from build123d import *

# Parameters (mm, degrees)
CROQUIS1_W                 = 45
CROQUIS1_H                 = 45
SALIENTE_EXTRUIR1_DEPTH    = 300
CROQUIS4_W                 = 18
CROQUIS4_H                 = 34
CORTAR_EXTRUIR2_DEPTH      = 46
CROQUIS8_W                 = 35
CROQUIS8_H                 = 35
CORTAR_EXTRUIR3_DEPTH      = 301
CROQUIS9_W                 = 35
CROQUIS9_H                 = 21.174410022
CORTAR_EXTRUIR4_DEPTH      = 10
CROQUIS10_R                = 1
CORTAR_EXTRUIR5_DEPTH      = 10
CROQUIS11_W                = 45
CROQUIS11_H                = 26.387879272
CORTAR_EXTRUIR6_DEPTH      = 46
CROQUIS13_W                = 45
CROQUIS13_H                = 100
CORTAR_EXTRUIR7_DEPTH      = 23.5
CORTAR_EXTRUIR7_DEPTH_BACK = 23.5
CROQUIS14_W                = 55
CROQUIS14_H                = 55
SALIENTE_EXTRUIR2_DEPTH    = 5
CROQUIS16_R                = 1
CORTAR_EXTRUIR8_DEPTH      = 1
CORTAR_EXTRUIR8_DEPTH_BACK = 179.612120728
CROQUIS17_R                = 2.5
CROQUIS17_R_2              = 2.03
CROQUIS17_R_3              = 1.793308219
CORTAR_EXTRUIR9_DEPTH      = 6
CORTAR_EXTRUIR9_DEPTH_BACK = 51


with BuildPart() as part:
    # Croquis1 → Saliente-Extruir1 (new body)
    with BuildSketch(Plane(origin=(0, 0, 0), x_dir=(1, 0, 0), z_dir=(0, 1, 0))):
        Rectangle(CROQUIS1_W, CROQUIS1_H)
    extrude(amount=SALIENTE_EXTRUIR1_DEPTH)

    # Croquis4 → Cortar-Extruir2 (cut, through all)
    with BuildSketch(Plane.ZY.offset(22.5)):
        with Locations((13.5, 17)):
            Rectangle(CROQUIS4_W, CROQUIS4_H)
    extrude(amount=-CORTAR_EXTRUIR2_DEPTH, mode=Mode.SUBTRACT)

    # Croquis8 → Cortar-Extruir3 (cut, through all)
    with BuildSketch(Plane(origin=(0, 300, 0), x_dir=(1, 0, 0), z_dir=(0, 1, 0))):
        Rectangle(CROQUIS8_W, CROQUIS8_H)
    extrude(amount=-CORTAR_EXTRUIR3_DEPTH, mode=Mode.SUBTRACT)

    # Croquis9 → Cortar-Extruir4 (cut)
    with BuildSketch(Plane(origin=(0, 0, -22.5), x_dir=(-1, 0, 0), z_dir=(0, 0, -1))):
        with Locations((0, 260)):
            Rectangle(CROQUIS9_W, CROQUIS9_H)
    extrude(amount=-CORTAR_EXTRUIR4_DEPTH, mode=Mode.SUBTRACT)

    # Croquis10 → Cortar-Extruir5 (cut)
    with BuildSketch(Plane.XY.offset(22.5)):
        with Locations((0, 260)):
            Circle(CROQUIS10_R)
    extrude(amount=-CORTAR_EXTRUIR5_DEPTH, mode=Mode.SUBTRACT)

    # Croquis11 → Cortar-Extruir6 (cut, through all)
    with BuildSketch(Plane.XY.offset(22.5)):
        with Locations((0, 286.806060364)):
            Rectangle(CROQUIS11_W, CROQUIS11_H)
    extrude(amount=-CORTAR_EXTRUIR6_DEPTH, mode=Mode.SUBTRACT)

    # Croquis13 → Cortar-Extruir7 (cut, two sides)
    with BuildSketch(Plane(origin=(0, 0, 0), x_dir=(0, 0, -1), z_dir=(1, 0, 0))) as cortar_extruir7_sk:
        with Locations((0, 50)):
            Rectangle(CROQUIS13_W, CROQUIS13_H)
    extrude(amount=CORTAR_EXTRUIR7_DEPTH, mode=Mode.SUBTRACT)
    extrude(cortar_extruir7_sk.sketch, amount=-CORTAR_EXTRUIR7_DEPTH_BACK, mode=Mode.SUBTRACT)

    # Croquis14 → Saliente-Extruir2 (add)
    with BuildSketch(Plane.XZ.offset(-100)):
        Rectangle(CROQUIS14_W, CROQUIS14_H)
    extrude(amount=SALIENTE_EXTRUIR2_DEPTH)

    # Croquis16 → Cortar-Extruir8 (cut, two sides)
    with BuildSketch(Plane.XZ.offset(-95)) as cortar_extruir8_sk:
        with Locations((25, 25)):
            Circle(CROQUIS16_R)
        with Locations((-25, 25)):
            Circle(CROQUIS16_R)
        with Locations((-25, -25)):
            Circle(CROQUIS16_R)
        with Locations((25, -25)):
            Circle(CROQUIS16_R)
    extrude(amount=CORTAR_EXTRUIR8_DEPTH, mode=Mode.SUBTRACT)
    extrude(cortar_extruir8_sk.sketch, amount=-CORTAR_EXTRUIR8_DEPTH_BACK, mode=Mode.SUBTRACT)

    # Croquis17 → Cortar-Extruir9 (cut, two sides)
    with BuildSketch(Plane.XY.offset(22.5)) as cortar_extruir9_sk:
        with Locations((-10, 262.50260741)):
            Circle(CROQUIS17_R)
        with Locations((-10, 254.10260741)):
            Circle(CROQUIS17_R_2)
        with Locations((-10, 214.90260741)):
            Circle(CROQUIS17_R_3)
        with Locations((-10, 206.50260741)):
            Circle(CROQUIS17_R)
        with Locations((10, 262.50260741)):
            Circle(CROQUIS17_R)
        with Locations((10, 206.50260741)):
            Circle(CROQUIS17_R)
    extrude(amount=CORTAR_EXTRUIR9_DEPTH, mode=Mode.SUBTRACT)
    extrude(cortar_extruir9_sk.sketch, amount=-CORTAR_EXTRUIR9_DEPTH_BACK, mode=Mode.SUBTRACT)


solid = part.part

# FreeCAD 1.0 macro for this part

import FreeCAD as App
import Part
import Sketcher
from FreeCAD import Vector

doc = App.newDocument("Part")
body = doc.addObject("PartDesign::Body", "Body")

# Sketch on XZ plane
sketch1 = body.newObject("Sketcher::SketchObject", "Sketch")
sketch1.AttachmentSupport = (doc.getObject("XZ_Plane"), [""])
sketch1.MapMode = "FlatFace"
sketch1.addGeometry([
    Part.LineSegment(Vector(-22, -22, 0), Vector(-22, 22, 0)),
    Part.LineSegment(Vector(-22, 22, 0), Vector(22, 22, 0)),
    Part.LineSegment(Vector(22, 22, 0), Vector(22, -22, 0)),
    Part.LineSegment(Vector(22, -22, 0), Vector(-22, -22, 0)),
], False)
sketch1.addConstraint([
    Sketcher.Constraint("Coincident", 0, 2, 1, 1),
    Sketcher.Constraint("Coincident", 1, 2, 2, 1),
    Sketcher.Constraint("Coincident", 2, 2, 3, 1),
    Sketcher.Constraint("Coincident", 3, 2, 0, 1),
    Sketcher.Constraint("Vertical", 0),
    Sketcher.Constraint("Horizontal", 1),
    Sketcher.Constraint("Vertical", 2),
    Sketcher.Constraint("Horizontal", 3),
    Sketcher.Constraint("Symmetric", 0, 2, 2, 2, -1, 1),
    Sketcher.Constraint("Equal", 3, 0),
    Sketcher.Constraint("DistanceX", 1, 1, 1, 2, 45.0),
])
pad1 = body.newObject("PartDesign::Pad", "Pad")
pad1.Profile = sketch1
pad1.Length = 300
pad1.Reversed = True

# Sketch on YZ plane
sketch2 = body.newObject("Sketcher::SketchObject", "Sketch001")
sketch2.AttachmentSupport = (doc.getObject("YZ_Plane"), [""])
sketch2.MapMode = "FlatFace"
sketch2.AttachmentOffset = App.Placement(Vector(0, 0, -22.5), App.Rotation())
sketch2.addGeometry([
    Part.LineSegment(Vector(34, 4, 0), Vector(0, 4, 0)),
    Part.LineSegment(Vector(0, 4, 0), Vector(0, 22, 0)),
    Part.LineSegment(Vector(0, 22, 0), Vector(34, 22, 0)),
    Part.LineSegment(Vector(34, 22, 0), Vector(34, 4, 0)),
], False)
sketch2.addConstraint([
    Sketcher.Constraint("Coincident", 0, 2, 1, 1),
    Sketcher.Constraint("Coincident", 1, 2, 2, 1),
    Sketcher.Constraint("Coincident", 2, 2, 3, 1),
    Sketcher.Constraint("Coincident", 3, 2, 0, 1),
    Sketcher.Constraint("Horizontal", 0),
    Sketcher.Constraint("Vertical", 1),
    Sketcher.Constraint("Horizontal", 2),
    Sketcher.Constraint("Vertical", 3),
    Sketcher.Constraint("PointOnObject", 0, 2, -2),
    Sketcher.Constraint("DistanceX", 0, 2, 0, 1, 34.0),
    Sketcher.Constraint("DistanceY", 1, 1, 1, 2, 18.0),
    Sketcher.Constraint("DistanceY", -1, 1, 0, 2, 4.5),
])
pocket1 = body.newObject("PartDesign::Pocket", "Pocket")
pocket1.Profile = sketch2
pocket1.Type = "ThroughAll"
pocket1.Reversed = True

# Sketch on XZ plane
sketch3 = body.newObject("Sketcher::SketchObject", "Sketch002")
sketch3.AttachmentSupport = (doc.getObject("XZ_Plane"), [""])
sketch3.MapMode = "FlatFace"
sketch3.AttachmentOffset = App.Placement(Vector(0, 0, -300), App.Rotation())
sketch3.addGeometry([
    Part.LineSegment(Vector(-18, -18, 0), Vector(-18, 18, 0)),
    Part.LineSegment(Vector(-18, 18, 0), Vector(18, 18, 0)),
    Part.LineSegment(Vector(18, 18, 0), Vector(18, -18, 0)),
    Part.LineSegment(Vector(18, -18, 0), Vector(-18, -18, 0)),
], False)
sketch3.addConstraint([
    Sketcher.Constraint("Coincident", 0, 2, 1, 1),
    Sketcher.Constraint("Coincident", 1, 2, 2, 1),
    Sketcher.Constraint("Coincident", 2, 2, 3, 1),
    Sketcher.Constraint("Coincident", 3, 2, 0, 1),
    Sketcher.Constraint("Vertical", 0),
    Sketcher.Constraint("Horizontal", 1),
    Sketcher.Constraint("Vertical", 2),
    Sketcher.Constraint("Horizontal", 3),
    Sketcher.Constraint("Symmetric", 0, 2, 2, 2, -1, 1),
    Sketcher.Constraint("Equal", 3, 0),
    Sketcher.Constraint("DistanceX", 1, 1, 1, 2, 35.0),
])
pocket2 = body.newObject("PartDesign::Pocket", "Pocket001")
pocket2.Profile = sketch3
pocket2.Type = "ThroughAll"
pocket2.Reversed = True

# Sketch on XY plane
sketch4 = body.newObject("Sketcher::SketchObject", "Sketch003")
sketch4.AttachmentSupport = (doc.getObject("XY_Plane"), [""])
sketch4.MapMode = "FlatFace"
sketch4.AttachmentOffset = App.Placement(Vector(0, 0, -22.5), App.Rotation())
sketch4.addGeometry([
    Part.LineSegment(Vector(18, 271, 0), Vector(18, 249, 0)),
    Part.LineSegment(Vector(18, 249, 0), Vector(-18, 249, 0)),
    Part.LineSegment(Vector(-18, 249, 0), Vector(-18, 271, 0)),
    Part.LineSegment(Vector(-18, 271, 0), Vector(18, 271, 0)),
], False)
sketch4.addConstraint([
    Sketcher.Constraint("Coincident", 0, 2, 1, 1),
    Sketcher.Constraint("Coincident", 1, 2, 2, 1),
    Sketcher.Constraint("Coincident", 2, 2, 3, 1),
    Sketcher.Constraint("Coincident", 3, 2, 0, 1),
    Sketcher.Constraint("Vertical", 0),
    Sketcher.Constraint("Horizontal", 1),
    Sketcher.Constraint("Vertical", 2),
    Sketcher.Constraint("Horizontal", 3),
    Sketcher.Constraint("DistanceX", 1, 2, 1, 1, 35.0),
    Sketcher.Constraint("DistanceX", -1, 1, 0, 2, 17.5),
    Sketcher.Constraint("DistanceY", 0, 2, 0, 1, 21.17441),
    Sketcher.Constraint("DistanceY", -1, 1, 0, 2, 249.412795),
])
pocket3 = body.newObject("PartDesign::Pocket", "Pocket002")
pocket3.Profile = sketch4
pocket3.Length = 10
pocket3.Reversed = True

# Sketch on XY plane
sketch5 = body.newObject("Sketcher::SketchObject", "Sketch004")
sketch5.AttachmentSupport = (doc.getObject("XY_Plane"), [""])
sketch5.MapMode = "FlatFace"
sketch5.AttachmentOffset = App.Placement(Vector(0, 0, 22.5), App.Rotation())
sketch5.addGeometry(Part.Circle(Vector(0, 260, 0), Vector(0, 0, 1), 1), False)
sketch5.addConstraint([
    Sketcher.Constraint("PointOnObject", 0, 3, -2),
    Sketcher.Constraint("Diameter", 0, 2.0),
    Sketcher.Constraint("DistanceY", -1, 1, 0, 3, 260.0),
])
pocket4 = body.newObject("PartDesign::Pocket", "Pocket003")
pocket4.Profile = sketch5
pocket4.Length = 10

# Sketch on XY plane
sketch6 = body.newObject("Sketcher::SketchObject", "Sketch005")
sketch6.AttachmentSupport = (doc.getObject("XY_Plane"), [""])
sketch6.MapMode = "FlatFace"
sketch6.AttachmentOffset = App.Placement(Vector(0, 0, 22.5), App.Rotation())
sketch6.addGeometry([
    Part.LineSegment(Vector(-22, 300, 0), Vector(-22, 274, 0)),
    Part.LineSegment(Vector(-22, 274, 0), Vector(22, 274, 0)),
    Part.LineSegment(Vector(22, 274, 0), Vector(22, 300, 0)),
    Part.LineSegment(Vector(22, 300, 0), Vector(-22, 300, 0)),
], False)
sketch6.addConstraint([
    Sketcher.Constraint("Coincident", 0, 2, 1, 1),
    Sketcher.Constraint("Coincident", 1, 2, 2, 1),
    Sketcher.Constraint("Coincident", 2, 2, 3, 1),
    Sketcher.Constraint("Coincident", 3, 2, 0, 1),
    Sketcher.Constraint("Vertical", 0),
    Sketcher.Constraint("Horizontal", 1),
    Sketcher.Constraint("Vertical", 2),
    Sketcher.Constraint("Horizontal", 3),
    Sketcher.Constraint("DistanceX", 1, 1, 1, 2, 45.0),
    Sketcher.Constraint("DistanceY", -1, 1, 2, 2, 300.0),
    Sketcher.Constraint("DistanceX", 0, 2, -1, 1, 22.5),
    Sketcher.Constraint("DistanceY", 0, 2, 0, 1, 26.387879),
])
pocket5 = body.newObject("PartDesign::Pocket", "Pocket004")
pocket5.Profile = sketch6
pocket5.Type = "ThroughAll"

# Sketch on YZ plane
sketch7 = body.newObject("Sketcher::SketchObject", "Sketch006")
sketch7.AttachmentSupport = (doc.getObject("YZ_Plane"), [""])
sketch7.MapMode = "FlatFace"
sketch7.addGeometry([
    Part.LineSegment(Vector(100, 22, 0), Vector(0, 22, 0)),
    Part.LineSegment(Vector(0, 22, 0), Vector(0, -22, 0)),
    Part.LineSegment(Vector(0, -22, 0), Vector(100, -22, 0)),
    Part.LineSegment(Vector(100, -22, 0), Vector(100, 22, 0)),
], False)
sketch7.addConstraint([
    Sketcher.Constraint("Coincident", 0, 2, 1, 1),
    Sketcher.Constraint("Coincident", 1, 2, 2, 1),
    Sketcher.Constraint("Coincident", 2, 2, 3, 1),
    Sketcher.Constraint("Coincident", 3, 2, 0, 1),
    Sketcher.Constraint("Horizontal", 0),
    Sketcher.Constraint("Vertical", 1),
    Sketcher.Constraint("Horizontal", 2),
    Sketcher.Constraint("Vertical", 3),
    Sketcher.Constraint("Symmetric", 0, 2, 1, 2, -1, 1),
    Sketcher.Constraint("DistanceX", 0, 2, 0, 1, 100.0),
    Sketcher.Constraint("DistanceY", 1, 2, 1, 1, 45.0),
])
pocket6 = body.newObject("PartDesign::Pocket", "Pocket005")
pocket6.Profile = sketch7
pocket6.Type = "ThroughAll"
pocket6.Midplane = True

# Sketch on XZ plane
sketch8 = body.newObject("Sketcher::SketchObject", "Sketch007")
sketch8.AttachmentSupport = (doc.getObject("XZ_Plane"), [""])
sketch8.MapMode = "FlatFace"
sketch8.AttachmentOffset = App.Placement(Vector(0, 0, -100), App.Rotation())
sketch8.addGeometry([
    Part.LineSegment(Vector(-28, 28, 0), Vector(-28, -28, 0)),
    Part.LineSegment(Vector(-28, -28, 0), Vector(28, -28, 0)),
    Part.LineSegment(Vector(28, -28, 0), Vector(28, 28, 0)),
    Part.LineSegment(Vector(28, 28, 0), Vector(-28, 28, 0)),
], False)
sketch8.addConstraint([
    Sketcher.Constraint("Coincident", 0, 2, 1, 1),
    Sketcher.Constraint("Coincident", 1, 2, 2, 1),
    Sketcher.Constraint("Coincident", 2, 2, 3, 1),
    Sketcher.Constraint("Coincident", 3, 2, 0, 1),
    Sketcher.Constraint("Vertical", 0),
    Sketcher.Constraint("Horizontal", 1),
    Sketcher.Constraint("Vertical", 2),
    Sketcher.Constraint("Horizontal", 3),
    Sketcher.Constraint("Symmetric", 0, 2, 2, 2, -1, 1),
    Sketcher.Constraint("Equal", 3, 0),
    Sketcher.Constraint("DistanceX", 1, 1, 1, 2, 55.0),
])
pad2 = body.newObject("PartDesign::Pad", "Pad001")
pad2.Profile = sketch8
pad2.Length = 5

# Sketch on XZ plane
sketch9 = body.newObject("Sketcher::SketchObject", "Sketch008")
sketch9.AttachmentSupport = (doc.getObject("XZ_Plane"), [""])
sketch9.MapMode = "FlatFace"
sketch9.AttachmentOffset = App.Placement(Vector(0, 0, -95), App.Rotation())
sketch9.addGeometry([
    Part.Circle(Vector(25, 25, 0), Vector(0, 0, 1), 1),
    Part.Circle(Vector(-25, 25, 0), Vector(0, 0, 1), 1),
    Part.Circle(Vector(-25, -25, 0), Vector(0, 0, 1), 1),
    Part.Circle(Vector(25, -25, 0), Vector(0, 0, 1), 1),
], False)
sketch9.addConstraint([
    Sketcher.Constraint("Equal", 0, 1),
    Sketcher.Constraint("Equal", 1, 2),
    Sketcher.Constraint("Equal", 2, 3),
    Sketcher.Constraint("Symmetric", 0, 3, 2, 3, -1, 1),
    Sketcher.Constraint("Symmetric", 1, 3, 3, 3, -1, 1),
    Sketcher.Constraint("Symmetric", 0, 3, 1, 3, -2),
    Sketcher.Constraint("Diameter", 0, 2.0),
    Sketcher.Constraint("DistanceX", -1, 1, 0, 3, 25.0),
    Sketcher.Constraint("DistanceY", -1, 1, 0, 3, 25.0),
])
pocket7 = body.newObject("PartDesign::Pocket", "Pocket006")
pocket7.Profile = sketch9
pocket7.Type = "ThroughAll"
pocket7.Midplane = True

# Sketch on XY plane
sketch10 = body.newObject("Sketcher::SketchObject", "Sketch009")
sketch10.AttachmentSupport = (doc.getObject("XY_Plane"), [""])
sketch10.MapMode = "FlatFace"
sketch10.AttachmentOffset = App.Placement(Vector(0, 0, 22.5), App.Rotation())
sketch10.addGeometry([
    Part.Circle(Vector(-10, 262.5, 0), Vector(0, 0, 1), 2.5),  # 0
    Part.Circle(Vector(-10, 254.1, 0), Vector(0, 0, 1), 2),  # 1
    Part.Circle(Vector(-10, 214.9, 0), Vector(0, 0, 1), 1.8),  # 2
    Part.Circle(Vector(-10, 206.5, 0), Vector(0, 0, 1), 2.5),  # 3
    Part.Circle(Vector(10, 262.5, 0), Vector(0, 0, 1), 2.5),  # 4
    Part.Circle(Vector(10, 206.5, 0), Vector(0, 0, 1), 2.5),  # 5
], False)
sketch10.addConstraint([
    Sketcher.Constraint("Equal", 0, 3),
    Sketcher.Constraint("Equal", 3, 4),
    Sketcher.Constraint("Equal", 4, 5),
    Sketcher.Constraint("Symmetric", 0, 3, 4, 3, -2),
    Sketcher.Constraint("Symmetric", 3, 3, 5, 3, -2),
    Sketcher.Constraint("Vertical", 0, 3, 1, 3),
    Sketcher.Constraint("Vertical", 1, 3, 2, 3),
    Sketcher.Constraint("Vertical", 2, 3, 3, 3),
    Sketcher.Constraint("Diameter", 0, 5.0),
    Sketcher.Constraint("Diameter", 1, 4.06),
    Sketcher.Constraint("DistanceX", 0, 3, -1, 1, 10.0),
    Sketcher.Constraint("DistanceY", 3, 3, 0, 3, 56.0),
    Sketcher.Constraint("DistanceY", 1, 3, 0, 3, 8.4),
    Sketcher.Constraint("DistanceY", 2, 3, 1, 3, 39.2),
    Sketcher.Constraint("Diameter", 2, 3.586616),
    Sketcher.Constraint("DistanceY", -1, 1, 0, 3, 262.502607),
])
pocket8 = body.newObject("PartDesign::Pocket", "Pocket007")
pocket8.Profile = sketch10
pocket8.Type = "ThroughAll"
pocket8.Midplane = True

doc.recompute()
